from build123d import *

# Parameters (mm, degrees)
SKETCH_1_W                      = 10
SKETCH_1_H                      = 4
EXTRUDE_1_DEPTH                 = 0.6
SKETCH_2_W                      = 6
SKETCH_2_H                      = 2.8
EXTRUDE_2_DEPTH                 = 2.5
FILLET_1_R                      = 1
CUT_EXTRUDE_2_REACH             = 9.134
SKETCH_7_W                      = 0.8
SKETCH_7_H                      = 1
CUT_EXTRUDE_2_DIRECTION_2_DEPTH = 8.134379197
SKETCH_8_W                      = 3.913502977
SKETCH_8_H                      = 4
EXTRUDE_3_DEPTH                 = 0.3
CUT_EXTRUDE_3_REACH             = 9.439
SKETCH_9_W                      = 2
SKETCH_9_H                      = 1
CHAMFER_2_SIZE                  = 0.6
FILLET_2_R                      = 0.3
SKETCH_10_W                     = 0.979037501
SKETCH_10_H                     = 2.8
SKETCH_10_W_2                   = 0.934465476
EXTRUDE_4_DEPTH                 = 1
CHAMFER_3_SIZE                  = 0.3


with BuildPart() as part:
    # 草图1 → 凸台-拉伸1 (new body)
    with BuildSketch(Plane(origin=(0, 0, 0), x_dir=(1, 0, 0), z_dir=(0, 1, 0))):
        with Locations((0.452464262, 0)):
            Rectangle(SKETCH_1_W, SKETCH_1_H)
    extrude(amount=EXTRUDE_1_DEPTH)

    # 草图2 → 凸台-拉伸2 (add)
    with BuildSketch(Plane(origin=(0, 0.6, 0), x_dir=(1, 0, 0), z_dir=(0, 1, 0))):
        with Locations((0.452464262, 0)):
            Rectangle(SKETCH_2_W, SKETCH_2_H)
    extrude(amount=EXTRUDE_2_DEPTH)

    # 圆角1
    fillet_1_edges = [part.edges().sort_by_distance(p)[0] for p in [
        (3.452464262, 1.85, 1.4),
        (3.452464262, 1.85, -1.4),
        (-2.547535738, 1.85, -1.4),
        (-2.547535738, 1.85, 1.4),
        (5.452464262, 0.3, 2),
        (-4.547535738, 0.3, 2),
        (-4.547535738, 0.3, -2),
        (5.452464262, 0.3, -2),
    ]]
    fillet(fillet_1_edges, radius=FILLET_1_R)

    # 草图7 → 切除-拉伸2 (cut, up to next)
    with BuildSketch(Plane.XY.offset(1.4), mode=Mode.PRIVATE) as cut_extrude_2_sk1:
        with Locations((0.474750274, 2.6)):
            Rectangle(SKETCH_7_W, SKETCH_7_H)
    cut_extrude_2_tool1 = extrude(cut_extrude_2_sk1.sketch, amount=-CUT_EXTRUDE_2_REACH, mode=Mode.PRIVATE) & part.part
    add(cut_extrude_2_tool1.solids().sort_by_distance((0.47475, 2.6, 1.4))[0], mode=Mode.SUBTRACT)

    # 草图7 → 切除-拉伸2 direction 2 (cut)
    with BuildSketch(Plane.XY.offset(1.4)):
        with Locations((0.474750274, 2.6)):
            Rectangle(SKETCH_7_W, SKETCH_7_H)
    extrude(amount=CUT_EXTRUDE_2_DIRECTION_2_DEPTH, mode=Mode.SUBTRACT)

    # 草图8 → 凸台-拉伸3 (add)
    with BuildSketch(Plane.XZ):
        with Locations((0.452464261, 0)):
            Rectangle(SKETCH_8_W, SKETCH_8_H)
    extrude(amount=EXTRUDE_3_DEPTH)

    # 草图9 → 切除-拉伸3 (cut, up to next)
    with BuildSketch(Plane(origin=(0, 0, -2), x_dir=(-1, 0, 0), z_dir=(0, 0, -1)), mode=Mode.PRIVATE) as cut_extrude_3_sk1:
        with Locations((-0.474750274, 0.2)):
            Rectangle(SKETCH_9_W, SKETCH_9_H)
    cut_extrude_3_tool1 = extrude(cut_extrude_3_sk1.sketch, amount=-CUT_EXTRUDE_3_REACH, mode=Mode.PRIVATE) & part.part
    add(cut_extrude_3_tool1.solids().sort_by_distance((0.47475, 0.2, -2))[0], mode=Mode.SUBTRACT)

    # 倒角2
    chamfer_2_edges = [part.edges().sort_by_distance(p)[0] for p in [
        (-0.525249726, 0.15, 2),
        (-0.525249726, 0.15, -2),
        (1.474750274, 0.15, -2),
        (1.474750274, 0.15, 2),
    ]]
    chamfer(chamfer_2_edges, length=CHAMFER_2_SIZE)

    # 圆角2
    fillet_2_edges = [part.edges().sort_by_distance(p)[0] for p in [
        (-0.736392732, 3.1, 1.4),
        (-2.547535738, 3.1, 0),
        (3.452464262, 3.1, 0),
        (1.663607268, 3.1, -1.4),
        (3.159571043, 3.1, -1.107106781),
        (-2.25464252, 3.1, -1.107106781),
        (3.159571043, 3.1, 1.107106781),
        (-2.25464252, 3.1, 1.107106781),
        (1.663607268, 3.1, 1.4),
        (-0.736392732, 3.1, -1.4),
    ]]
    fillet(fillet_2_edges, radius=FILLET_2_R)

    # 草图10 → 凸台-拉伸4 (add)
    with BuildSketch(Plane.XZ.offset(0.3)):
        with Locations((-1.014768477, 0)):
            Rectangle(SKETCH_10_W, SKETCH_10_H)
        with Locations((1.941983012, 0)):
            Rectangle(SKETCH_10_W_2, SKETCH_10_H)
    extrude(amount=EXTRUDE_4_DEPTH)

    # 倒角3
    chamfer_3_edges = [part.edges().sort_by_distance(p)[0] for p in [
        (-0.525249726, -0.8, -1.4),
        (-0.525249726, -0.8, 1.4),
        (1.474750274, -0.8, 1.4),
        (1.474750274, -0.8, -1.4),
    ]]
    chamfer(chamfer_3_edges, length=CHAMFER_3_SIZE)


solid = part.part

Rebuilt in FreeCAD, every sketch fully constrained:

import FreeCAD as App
import Part
import Sketcher

V = App.Vector


def edges_at(feature, points):
    """Names of the edges that pass closest to the given points."""
    edges = feature.Shape.Edges
    near = lambda p: min(range(len(edges)), key=lambda i: edges[i].distToShape(Part.Vertex(*p))[0])
    return sorted({f"Edge{near(p) + 1}" for p in points})

doc = App.newDocument("Part")
params = doc.addObject("Spreadsheet::Sheet", "Params")
for row, (alias, value) in enumerate([
    ("sketch1_width", "10 mm"),
    ("sketch1_height", "4 mm"),
    ("pad1_length", "0.6 mm"),
    ("sketch2_width", "6 mm"),
    ("sketch2_height", "2.8 mm"),
    ("pad2_length", "2.5 mm"),
    ("fillet_radius", "1 mm"),
    ("sketch3_height", "1 mm"),
    ("sketch3_width", "0.8 mm"),
    ("sketch4_height", "1 mm"),
    ("sketch4_width", "0.8 mm"),
    ("pocket2_length", "8.134379 mm"),
    ("sketch5_height", "4 mm"),
    ("pad3_length", "0.3 mm"),
    ("sketch6_width", "2 mm"),
    ("sketch6_height", "1 mm"),
    ("chamfer_size", "0.6 mm"),
    ("fillet2_radius", "0.3 mm"),
    ("sketch7_height", "2.8 mm"),
    ("pad4_length", "1 mm"),
    ("chamfer2_size", "0.3 mm"),
], start=1):
    params.set(f"A{row}", alias)
    params.set(f"B{row}", "=" + value)
    params.setAlias(f"B{row}", alias)

body = doc.addObject("PartDesign::Body", "Body")

# Sketch on XZ plane
sketch1 = body.newObject("Sketcher::SketchObject", "Sketch")
sketch1.AttachmentSupport = (doc.getObject("XZ_Plane"), [""])
sketch1.MapMode = "FlatFace"
sketch1.addGeometry([
    Part.LineSegment(V(-4.5, -2, 0), V(-4.5, 2, 0)),
    Part.LineSegment(V(-4.5, 2, 0), V(5.5, 2, 0)),
    Part.LineSegment(V(5.5, 2, 0), V(5.5, -2, 0)),
    Part.LineSegment(V(5.5, -2, 0), V(-4.5, -2, 0)),
], False)
sketch1.addConstraint([
    Sketcher.Constraint("Coincident", 0, 2, 1, 1),
    Sketcher.Constraint("Coincident", 1, 2, 2, 1),
    Sketcher.Constraint("Coincident", 2, 2, 3, 1),
    Sketcher.Constraint("Coincident", 3, 2, 0, 1),
    Sketcher.Constraint("Vertical", 0),
    Sketcher.Constraint("Horizontal", 1),
    Sketcher.Constraint("Vertical", 2),
    Sketcher.Constraint("Horizontal", 3),
    Sketcher.Constraint("DistanceX", 1, 1, 1, 2, 10.0),
    Sketcher.Constraint("DistanceY", 0, 1, 0, 2, 4.0),
    Sketcher.Constraint("DistanceY", -1, 1, 0, 2, 2.0),
    Sketcher.Constraint("DistanceX", 0, 2, -1, 1, 4.547536),
])
sketch1.setExpression("Constraints[8]", "Params.sketch1_width")
sketch1.setExpression("Constraints[9]", "Params.sketch1_height")
pad1 = body.newObject("PartDesign::Pad", "Pad")
pad1.Profile = sketch1
pad1.setExpression("Length", "Params.pad1_length")
pad1.Reversed = True

# Sketch on XZ plane
sketch2 = body.newObject("Sketcher::SketchObject", "Sketch001")
sketch2.AttachmentSupport = (doc.getObject("XZ_Plane"), [""])
sketch2.MapMode = "FlatFace"
sketch2.AttachmentOffset = App.Placement(V(0, 0, -0.6), App.Rotation())
sketch2.addGeometry([
    Part.LineSegment(V(-2.5, -1.4, 0), V(-2.5, 1.4, 0)),
    Part.LineSegment(V(-2.5, 1.4, 0), V(3.5, 1.4, 0)),
    Part.LineSegment(V(3.5, 1.4, 0), V(3.5, -1.4, 0)),
    Part.LineSegment(V(3.5, -1.4, 0), V(-2.5, -1.4, 0)),
], False)
sketch2.addConstraint([
    Sketcher.Constraint("Coincident", 0, 2, 1, 1),
    Sketcher.Constraint("Coincident", 1, 2, 2, 1),
    Sketcher.Constraint("Coincident", 2, 2, 3, 1),
    Sketcher.Constraint("Coincident", 3, 2, 0, 1),
    Sketcher.Constraint("Vertical", 0),
    Sketcher.Constraint("Horizontal", 1),
    Sketcher.Constraint("Vertical", 2),
    Sketcher.Constraint("Horizontal", 3),
    Sketcher.Constraint("DistanceX", 1, 1, 1, 2, 6.0),
    Sketcher.Constraint("DistanceY", 0, 1, 0, 2, 2.8),
    Sketcher.Constraint("DistanceY", -1, 1, 0, 2, 1.4),
    Sketcher.Constraint("DistanceX", 0, 2, -1, 1, 2.547536),
])
sketch2.setExpression("Constraints[8]", "Params.sketch2_width")
sketch2.setExpression("Constraints[9]", "Params.sketch2_height")
pad2 = body.newObject("PartDesign::Pad", "Pad001")
pad2.Profile = sketch2
pad2.setExpression("Length", "Params.pad2_length")
pad2.Reversed = True
doc.recompute()

fillet = body.newObject("PartDesign::Fillet", "Fillet")
fillet.Base = (pad2, edges_at(pad2, [
    (3.452, 1.85, 1.4),
    (3.452, 1.85, -1.4),
    (-2.548, 1.85, -1.4),
    (-2.548, 1.85, 1.4),
    (5.452, 0.3, 2),
    (-4.548, 0.3, 2),
    (-4.548, 0.3, -2),
    (5.452, 0.3, -2),
]))
fillet.setExpression("Radius", "Params.fillet_radius")

# Sketch on XY plane
sketch3 = body.newObject("Sketcher::SketchObject", "Sketch002")
sketch3.AttachmentSupport = (doc.getObject("XY_Plane"), [""])
sketch3.MapMode = "FlatFace"
sketch3.AttachmentOffset = App.Placement(V(0, 0, 1.4), App.Rotation())
sketch3.addGeometry([
    Part.LineSegment(V(0.1, 3.1, 0), V(0.1, 2.1, 0)),
    Part.LineSegment(V(0.1, 2.1, 0), V(0.9, 2.1, 0)),
    Part.LineSegment(V(0.9, 2.1, 0), V(0.9, 3.1, 0)),
    Part.LineSegment(V(0.9, 3.1, 0), V(0.1, 3.1, 0)),
], False)
sketch3.addConstraint([
    Sketcher.Constraint("Coincident", 0, 2, 1, 1),
    Sketcher.Constraint("Coincident", 1, 2, 2, 1),
    Sketcher.Constraint("Coincident", 2, 2, 3, 1),
    Sketcher.Constraint("Coincident", 3, 2, 0, 1),
    Sketcher.Constraint("Vertical", 0),
    Sketcher.Constraint("Horizontal", 1),
    Sketcher.Constraint("Vertical", 2),
    Sketcher.Constraint("Horizontal", 3),
    Sketcher.Constraint("DistanceY", 0, 2, 0, 1, 1.0),
    Sketcher.Constraint("DistanceX", 1, 1, 1, 2, 0.8),
    Sketcher.Constraint("DistanceY", -1, 1, 0, 2, 2.1),
    Sketcher.Constraint("DistanceX", -1, 1, 0, 2, 0.07475),
])
sketch3.setExpression("Constraints[8]", "Params.sketch3_height")
sketch3.setExpression("Constraints[9]", "Params.sketch3_width")
pocket1 = body.newObject("PartDesign::Pocket", "Pocket")
pocket1.Profile = sketch3
pocket1.Type = "UpToFirst"

# Sketch on XY plane
sketch4 = body.newObject("Sketcher::SketchObject", "Sketch003")
sketch4.AttachmentSupport = (doc.getObject("XY_Plane"), [""])
sketch4.MapMode = "FlatFace"
sketch4.AttachmentOffset = App.Placement(V(0, 0, 1.4), App.Rotation())
sketch4.addGeometry([
    Part.LineSegment(V(0.1, 3.1, 0), V(0.1, 2.1, 0)),
    Part.LineSegment(V(0.1, 2.1, 0), V(0.9, 2.1, 0)),
    Part.LineSegment(V(0.9, 2.1, 0), V(0.9, 3.1, 0)),
    Part.LineSegment(V(0.9, 3.1, 0), V(0.1, 3.1, 0)),
], False)
sketch4.addConstraint([
    Sketcher.Constraint("Coincident", 0, 2, 1, 1),
    Sketcher.Constraint("Coincident", 1, 2, 2, 1),
    Sketcher.Constraint("Coincident", 2, 2, 3, 1),
    Sketcher.Constraint("Coincident", 3, 2, 0, 1),
    Sketcher.Constraint("Vertical", 0),
    Sketcher.Constraint("Horizontal", 1),
    Sketcher.Constraint("Vertical", 2),
    Sketcher.Constraint("Horizontal", 3),
    Sketcher.Constraint("DistanceY", 0, 2, 0, 1, 1.0),
    Sketcher.Constraint("DistanceX", 1, 1, 1, 2, 0.8),
    Sketcher.Constraint("DistanceY", -1, 1, 0, 2, 2.1),
    Sketcher.Constraint("DistanceX", -1, 1, 0, 2, 0.07475),
])
sketch4.setExpression("Constraints[8]", "Params.sketch4_height")
sketch4.setExpression("Constraints[9]", "Params.sketch4_width")
pocket2 = body.newObject("PartDesign::Pocket", "Pocket001")
pocket2.Profile = sketch4
pocket2.setExpression("Length", "Params.pocket2_length")
pocket2.Reversed = True

# Sketch on XZ plane
sketch5 = body.newObject("Sketcher::SketchObject", "Sketch004")
sketch5.AttachmentSupport = (doc.getObject("XZ_Plane"), [""])
sketch5.MapMode = "FlatFace"
sketch5.addGeometry([
    Part.LineSegment(V(-1.5, 2, 0), V(-1.5, -2, 0)),
    Part.LineSegment(V(-1.5, -2, 0), V(2.4, -2, 0)),
    Part.LineSegment(V(2.4, -2, 0), V(2.4, 2, 0)),
    Part.LineSegment(V(2.4, 2, 0), V(-1.5, 2, 0)),
], False)
sketch5.addConstraint([
    Sketcher.Constraint("Coincident", 0, 2, 1, 1),
    Sketcher.Constraint("Coincident", 1, 2, 2, 1),
    Sketcher.Constraint("Coincident", 2, 2, 3, 1),
    Sketcher.Constraint("Coincident", 3, 2, 0, 1),
    Sketcher.Constraint("Vertical", 0),
    Sketcher.Constraint("Horizontal", 1),
    Sketcher.Constraint("Vertical", 2),
    Sketcher.Constraint("Horizontal", 3),
    Sketcher.Constraint("DistanceY", 0, 2, 0, 1, 4.0),
    Sketcher.Constraint("DistanceY", 0, 2, -1, 1, 2.0),
    Sketcher.Constraint("DistanceX", 1, 1, 1, 2, 3.913503),
    Sketcher.Constraint("DistanceX", 0, 2, -1, 1, 1.504287),
])
sketch5.setExpression("Constraints[8]", "Params.sketch5_height")
pad3 = body.newObject("PartDesign::Pad", "Pad002")
pad3.Profile = sketch5
pad3.setExpression("Length", "Params.pad3_length")

# Sketch on XY plane
sketch6 = body.newObject("Sketcher::SketchObject", "Sketch005")
sketch6.AttachmentSupport = (doc.getObject("XY_Plane"), [""])
sketch6.MapMode = "FlatFace"
sketch6.AttachmentOffset = App.Placement(V(0, 0, -2), App.Rotation())
sketch6.addGeometry([
    Part.LineSegment(V(1.5, 0.7, 0), V(1.5, -0.3, 0)),
    Part.LineSegment(V(1.5, -0.3, 0), V(-0.5, -0.3, 0)),
    Part.LineSegment(V(-0.5, -0.3, 0), V(-0.5, 0.7, 0)),
    Part.LineSegment(V(-0.5, 0.7, 0), V(1.5, 0.7, 0)),
], False)
sketch6.addConstraint([
    Sketcher.Constraint("Coincident", 0, 2, 1, 1),
    Sketcher.Constraint("Coincident", 1, 2, 2, 1),
    Sketcher.Constraint("Coincident", 2, 2, 3, 1),
    Sketcher.Constraint("Coincident", 3, 2, 0, 1),
    Sketcher.Constraint("Vertical", 0),
    Sketcher.Constraint("Horizontal", 1),
    Sketcher.Constraint("Vertical", 2),
    Sketcher.Constraint("Horizontal", 3),
    Sketcher.Constraint("DistanceX", 1, 2, 1, 1, 2.0),
    Sketcher.Constraint("DistanceY", 0, 2, 0, 1, 1.0),
    Sketcher.Constraint("DistanceY", 0, 2, -1, 1, 0.3),
    Sketcher.Constraint("DistanceX", -1, 1, 0, 2, 1.47475),
])
sketch6.setExpression("Constraints[8]", "Params.sketch6_width")
sketch6.setExpression("Constraints[9]", "Params.sketch6_height")
pocket3 = body.newObject("PartDesign::Pocket", "Pocket002")
pocket3.Profile = sketch6
pocket3.Type = "UpToFirst"
pocket3.Reversed = True
doc.recompute()

chamfer = body.newObject("PartDesign::Chamfer", "Chamfer")
chamfer.Base = (pocket3, edges_at(pocket3, [
    (-0.525, 0.15, 2),
    (-0.525, 0.15, -2),
    (1.475, 0.15, -2),
    (1.475, 0.15, 2),
]))
chamfer.setExpression("Size", "Params.chamfer_size")
doc.recompute()

fillet2 = body.newObject("PartDesign::Fillet", "Fillet001")
fillet2.Base = (chamfer, edges_at(chamfer, [
    (-0.736, 3.1, 1.4),
    (-2.548, 3.1, 0),
    (3.452, 3.1, 0),
    (1.664, 3.1, -1.4),
    (3.16, 3.1, -1.107),
    (-2.255, 3.1, -1.107),
    (3.16, 3.1, 1.107),
    (-2.255, 3.1, 1.107),
    (1.664, 3.1, 1.4),
    (-0.736, 3.1, -1.4),
]))
fillet2.setExpression("Radius", "Params.fillet2_radius")

# Sketch on XZ plane
sketch7 = body.newObject("Sketcher::SketchObject", "Sketch006")
sketch7.AttachmentSupport = (doc.getObject("XZ_Plane"), [""])
sketch7.MapMode = "FlatFace"
sketch7.AttachmentOffset = App.Placement(V(0, 0, 0.3), App.Rotation())
sketch7.addGeometry([
    Part.LineSegment(V(-1.5, 1.4, 0), V(-1.5, -1.4, 0)),  # 0
    Part.LineSegment(V(-1.5, -1.4, 0), V(-0.5, -1.4, 0)),  # 1
    Part.LineSegment(V(-0.5, -1.4, 0), V(-0.5, 1.4, 0)),  # 2
    Part.LineSegment(V(-0.5, 1.4, 0), V(-1.5, 1.4, 0)),  # 3
    Part.LineSegment(V(1.5, 1.4, 0), V(1.5, -1.4, 0)),  # 4
    Part.LineSegment(V(1.5, -1.4, 0), V(2.4, -1.4, 0)),  # 5
    Part.LineSegment(V(2.4, -1.4, 0), V(2.4, 1.4, 0)),  # 6
    Part.LineSegment(V(2.4, 1.4, 0), V(1.5, 1.4, 0)),  # 7
], False)
sketch7.addConstraint([
    Sketcher.Constraint("Coincident", 0, 2, 1, 1),
    Sketcher.Constraint("Coincident", 1, 2, 2, 1),
    Sketcher.Constraint("Coincident", 2, 2, 3, 1),
    Sketcher.Constraint("Coincident", 3, 2, 0, 1),
    Sketcher.Constraint("Coincident", 4, 2, 5, 1),
    Sketcher.Constraint("Coincident", 5, 2, 6, 1),
    Sketcher.Constraint("Coincident", 6, 2, 7, 1),
    Sketcher.Constraint("Coincident", 7, 2, 4, 1),
    Sketcher.Constraint("Vertical", 0),
    Sketcher.Constraint("Horizontal", 1),
    Sketcher.Constraint("Vertical", 2),
    Sketcher.Constraint("Horizontal", 3),
    Sketcher.Constraint("Vertical", 4),
    Sketcher.Constraint("Horizontal", 5),
    Sketcher.Constraint("Vertical", 6),
    Sketcher.Constraint("Horizontal", 7),
    Sketcher.Constraint("Horizontal", 1, 2, 4, 2),
    Sketcher.Constraint("Horizontal", 3, 2, 6, 2),
    Sketcher.Constraint("DistanceY", 0, 2, 0, 1, 2.8),
    Sketcher.Constraint("DistanceX", 1, 2, 4, 2, 2.0),
    Sketcher.Constraint("DistanceY", 0, 2, -1, 1, 1.4),
    Sketcher.Constraint("DistanceX", 1, 1, 1, 2, 0.979038),
    Sketcher.Constraint("DistanceX", 5, 1, 5, 2, 0.934465),
    Sketcher.Constraint("DistanceX", 1, 2, -1, 1, 0.52525),
])
sketch7.setExpression("Constraints[18]", "Params.sketch7_height")
pad4 = body.newObject("PartDesign::Pad", "Pad003")
pad4.Profile = sketch7
pad4.setExpression("Length", "Params.pad4_length")
doc.recompute()

chamfer2 = body.newObject("PartDesign::Chamfer", "Chamfer001")
chamfer2.Base = (pad4, edges_at(pad4, [
    (-0.525, -0.8, -1.4),
    (-0.525, -0.8, 1.4),
    (1.475, -0.8, 1.4),
    (1.475, -0.8, -1.4),
]))
chamfer2.setExpression("Size", "Params.chamfer2_size")

doc.recompute()
